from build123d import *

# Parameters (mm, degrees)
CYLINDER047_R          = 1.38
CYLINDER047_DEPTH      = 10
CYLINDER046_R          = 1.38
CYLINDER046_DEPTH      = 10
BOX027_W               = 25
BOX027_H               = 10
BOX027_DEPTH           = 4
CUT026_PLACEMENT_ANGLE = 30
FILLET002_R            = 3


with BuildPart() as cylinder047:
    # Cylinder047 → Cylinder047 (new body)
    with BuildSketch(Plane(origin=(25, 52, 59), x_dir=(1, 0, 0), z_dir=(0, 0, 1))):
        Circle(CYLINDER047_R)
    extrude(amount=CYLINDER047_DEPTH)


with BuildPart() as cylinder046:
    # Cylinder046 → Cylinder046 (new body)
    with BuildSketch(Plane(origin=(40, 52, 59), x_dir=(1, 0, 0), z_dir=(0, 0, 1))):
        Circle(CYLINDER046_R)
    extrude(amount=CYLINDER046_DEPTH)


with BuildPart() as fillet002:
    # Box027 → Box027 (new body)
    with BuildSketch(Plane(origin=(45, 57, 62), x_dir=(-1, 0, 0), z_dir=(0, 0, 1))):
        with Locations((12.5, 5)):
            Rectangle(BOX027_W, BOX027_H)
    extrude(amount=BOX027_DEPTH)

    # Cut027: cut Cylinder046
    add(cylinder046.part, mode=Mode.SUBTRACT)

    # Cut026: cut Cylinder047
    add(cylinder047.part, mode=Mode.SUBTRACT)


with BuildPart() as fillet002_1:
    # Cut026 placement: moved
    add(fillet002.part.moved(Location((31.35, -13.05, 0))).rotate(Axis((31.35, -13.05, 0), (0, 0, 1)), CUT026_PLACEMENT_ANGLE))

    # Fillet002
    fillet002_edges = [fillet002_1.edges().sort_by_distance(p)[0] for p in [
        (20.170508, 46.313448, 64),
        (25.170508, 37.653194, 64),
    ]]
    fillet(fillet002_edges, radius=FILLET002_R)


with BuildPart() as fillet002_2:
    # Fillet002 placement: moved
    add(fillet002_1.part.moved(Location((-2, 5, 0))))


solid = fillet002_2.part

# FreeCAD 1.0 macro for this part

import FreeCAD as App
import Part
import Sketcher
from FreeCAD import Vector
Q = App.Units.Quantity


def edges_at(feature, points):
    """Names of the edges that pass closest to the given points."""
    edges = feature.Shape.Edges
    near = lambda p: min(range(len(edges)), key=lambda i: edges[i].distToShape(Part.Vertex(*p))[0])
    return sorted({f"Edge{near(p) + 1}" for p in points})


def add_polygon(sketch, points):
    """Adds a closed chain of lines whose ends are joined by coincident constraints."""
    first, n = sketch.GeometryCount, len(points)
    for a, b in zip(points, points[1:] + points[:1]):
        sketch.addGeometry(Part.LineSegment(App.Vector(*a, 0), App.Vector(*b, 0)), False)
    for i in range(n):
        sketch.addConstraint(Sketcher.Constraint("Coincident", first + i, 2, first + (i + 1) % n, 1))

doc = App.newDocument("Part")
body = doc.addObject("PartDesign::Body", "Body")

sketch1 = doc.addObject("Sketcher::SketchObject", "Sketch")
body.addObject(sketch1)
sketch1.AttachmentSupport = (doc.XY_Plane, [""])
sketch1.MapMode = "FlatFace"
sketch1.AttachmentOffset = App.Placement(Vector(0, 0, 59), App.Rotation())
sketch1.addGeometry(Part.Circle(Vector(25, 52, 0), Vector(0, 0, 1), 1.38), False)
sketch1.addConstraint([
    Sketcher.Constraint("Diameter", 0, Q("2.76 mm")),
    Sketcher.Constraint("DistanceX", -1, 1, 0, 3, Q("25 mm")),
    Sketcher.Constraint("DistanceY", -1, 1, 0, 3, Q("52 mm")),
])
pad1 = doc.addObject("PartDesign::Pad", "Pad")
body.addObject(pad1)
pad1.Profile = sketch1
pad1.Length = 10
body2 = doc.addObject("PartDesign::Body", "Body001")

sketch2 = doc.addObject("Sketcher::SketchObject", "Sketch001")
body2.addObject(sketch2)
sketch2.AttachmentSupport = (doc.getObject("XY_Plane001"), [""])
sketch2.MapMode = "FlatFace"
sketch2.AttachmentOffset = App.Placement(Vector(0, 0, 59), App.Rotation())
sketch2.addGeometry(Part.Circle(Vector(40, 52, 0), Vector(0, 0, 1), 1.38), False)
sketch2.addConstraint([
    Sketcher.Constraint("Diameter", 0, Q("2.76 mm")),
    Sketcher.Constraint("DistanceX", -1, 1, 0, 3, Q("40 mm")),
    Sketcher.Constraint("DistanceY", -1, 1, 0, 3, Q("52 mm")),
])
pad2 = doc.addObject("PartDesign::Pad", "Pad001")
body2.addObject(pad2)
pad2.Profile = sketch2
pad2.Length = 10
body3 = doc.addObject("PartDesign::Body", "Body002")

sketch3 = doc.addObject("Sketcher::SketchObject", "Sketch002")
body3.addObject(sketch3)
sketch3.AttachmentSupport = (doc.getObject("XY_Plane002"), [""])
sketch3.MapMode = "FlatFace"
sketch3.AttachmentOffset = App.Placement(Vector(0, 0, 62), App.Rotation())
add_polygon(sketch3, [(45, 47), (45, 57), (20, 57), (20, 47)])
sketch3.addConstraint([
    Sketcher.Constraint("Vertical", 0),
    Sketcher.Constraint("Horizontal", 1),
    Sketcher.Constraint("Vertical", 2),
    Sketcher.Constraint("Horizontal", 3),
    Sketcher.Constraint("DistanceX", 1, 2, 1, 1, Q("25 mm")),
    Sketcher.Constraint("DistanceY", 0, 1, 0, 2, Q("10 mm")),
    Sketcher.Constraint("DistanceX", -1, 1, 0, 2, Q("45 mm")),
    Sketcher.Constraint("DistanceY", -1, 1, 0, 2, Q("57 mm")),
])
pad3 = doc.addObject("PartDesign::Pad", "Pad002")
body3.addObject(pad3)
pad3.Profile = sketch3
pad3.Length = 4
doc.recompute()

boolean = doc.addObject("PartDesign::Boolean", "Boolean")
body3.addObject(boolean)
boolean.Type = "Cut"
boolean.addObjects([body2])
doc.recompute()

boolean2 = doc.addObject("PartDesign::Boolean", "Boolean001")
body3.addObject(boolean2)
boolean2.Type = "Cut"
boolean2.addObjects([body])
body4 = doc.addObject("PartDesign::Body", "Body003")
doc.recompute()

body3.Placement = App.Placement(Vector(31.35, -13.05, 0), App.Rotation(Vector(0, 0, 1), 30))
boolean3 = doc.addObject("PartDesign::Boolean", "Boolean002")
body4.addObject(boolean3)
boolean3.Type = "Fuse"
boolean3.addObjects([body3])
doc.recompute()

fillet = doc.addObject("PartDesign::Fillet", "Fillet")
body4.addObject(fillet)
fillet.Base = (boolean3, edges_at(boolean3, [(20.171, 46.313, 64), (25.171, 37.653, 64)]))
fillet.Radius = 3
body5 = doc.addObject("PartDesign::Body", "Body004")
doc.recompute()

body4.Placement = App.Placement(Vector(-2, 5, 0), App.Rotation(Vector(0, 0, 1), 0))
boolean4 = doc.addObject("PartDesign::Boolean", "Boolean003")
body5.addObject(boolean4)
boolean4.Type = "Fuse"
boolean4.addObjects([body4])

doc.recompute()
